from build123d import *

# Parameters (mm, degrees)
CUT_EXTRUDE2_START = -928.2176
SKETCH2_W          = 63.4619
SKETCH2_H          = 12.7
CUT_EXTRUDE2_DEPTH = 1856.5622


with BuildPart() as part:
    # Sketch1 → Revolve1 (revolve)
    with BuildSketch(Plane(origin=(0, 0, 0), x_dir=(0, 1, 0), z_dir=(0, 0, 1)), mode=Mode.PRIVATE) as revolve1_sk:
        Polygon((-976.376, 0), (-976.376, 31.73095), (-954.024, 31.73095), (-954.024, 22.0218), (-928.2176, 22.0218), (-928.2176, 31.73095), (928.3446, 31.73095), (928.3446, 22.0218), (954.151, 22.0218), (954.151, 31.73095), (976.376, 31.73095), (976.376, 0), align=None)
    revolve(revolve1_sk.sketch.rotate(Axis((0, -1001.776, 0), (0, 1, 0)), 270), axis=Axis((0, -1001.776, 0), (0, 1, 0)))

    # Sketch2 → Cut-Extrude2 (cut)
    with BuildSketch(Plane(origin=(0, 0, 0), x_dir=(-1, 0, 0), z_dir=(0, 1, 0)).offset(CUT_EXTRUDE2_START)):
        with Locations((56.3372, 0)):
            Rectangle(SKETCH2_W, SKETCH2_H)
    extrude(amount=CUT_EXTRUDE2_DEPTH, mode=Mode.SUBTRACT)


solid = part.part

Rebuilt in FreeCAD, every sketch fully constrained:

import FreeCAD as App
import Part
import Sketcher

V = App.Vector
Q = App.Units.Quantity


def add_polygon(sketch, points):
    """Adds a closed chain of lines whose ends are joined by coincident constraints."""
    first, n = sketch.GeometryCount, len(points)
    for a, b in zip(points, points[1:] + points[:1]):
        sketch.addGeometry(Part.LineSegment(App.Vector(*a, 0), App.Vector(*b, 0)), False)
    for i in range(n):
        sketch.addConstraint(Sketcher.Constraint("Coincident", first + i, 2, first + (i + 1) % n, 1))

doc = App.newDocument("Part")
body = doc.addObject("PartDesign::Body", "Body")

# Sketch on XY plane
sketch1 = body.newObject("Sketcher::SketchObject", "Sketch")
sketch1.AttachmentSupport = (doc.getObject("XY_Plane"), [""])
sketch1.MapMode = "FlatFace"
add_polygon(sketch1, [(-31.73095, -976.376), (0, -976.376), (0, 976.376), (-31.73095, 976.376), (-31.73095, 954.151), (-22.0218, 954.151), (-22.0218, 928.3446), (-31.73095, 928.3446), (-31.73095, -928.2176), (-22.0218, -928.2176), (-22.0218, -954.024), (-31.73095, -954.024)])  # lines 0-11
sketch1.addConstraint(Sketcher.Constraint("Horizontal", 0))
sketch1.addConstraint(Sketcher.Constraint("Vertical", 1))
sketch1.addConstraint(Sketcher.Constraint("Horizontal", 2))
sketch1.addConstraint(Sketcher.Constraint("Vertical", 3))
sketch1.addConstraint(Sketcher.Constraint("Horizontal", 4))
sketch1.addConstraint(Sketcher.Constraint("Vertical", 5))
sketch1.addConstraint(Sketcher.Constraint("Horizontal", 6))
sketch1.addConstraint(Sketcher.Constraint("Vertical", 7))
sketch1.addConstraint(Sketcher.Constraint("Horizontal", 8))
sketch1.addConstraint(Sketcher.Constraint("Vertical", 9))
sketch1.addConstraint(Sketcher.Constraint("Horizontal", 10))
sketch1.addConstraint(Sketcher.Constraint("Vertical", 11))
sketch1.addConstraint(Sketcher.Constraint("Symmetric", 0, 2, 1, 2, -1, 1))
sketch1.addConstraint(Sketcher.Constraint("Vertical", 3, 2, 6, 2))
sketch1.addConstraint(Sketcher.Constraint("Vertical", 5, 2, 8, 2))
sketch1.addConstraint(Sketcher.Constraint("Vertical", 7, 2, 10, 2))
sketch1.addConstraint(Sketcher.Constraint("Equal", 5, 9))
sketch1.addConstraint(Sketcher.Constraint("DistanceY", 1, 1, 1, 2, Q("76.88 in")))
sketch1.addConstraint(Sketcher.Constraint("DistanceY", 11, 2, 11, 1, Q("0.88 in")))
sketch1.addConstraint(Sketcher.Constraint("DistanceY", 3, 2, 3, 1, Q("0.875 in")))
sketch1.addConstraint(Sketcher.Constraint("DistanceY", 5, 2, 5, 1, Q("1.016 in")))
sketch1.addConstraint(Sketcher.Constraint("DistanceX", 4, 2, -1, 1, Q("0.867 in")))
sketch1.addConstraint(Sketcher.Constraint("DistanceX", 0, 1, 0, 2, 31.73095))
revolution = body.newObject("PartDesign::Revolution", "Revolution")
revolution.Profile = sketch1
revolution.ReferenceAxis = (sketch1, ["V_Axis"])
revolution.Angle = 360

# Sketch on XZ plane
sketch2 = body.newObject("Sketcher::SketchObject", "Sketch001")
sketch2.AttachmentSupport = (doc.getObject("XZ_Plane"), [""])
sketch2.MapMode = "FlatFace"
sketch2.AttachmentOffset = App.Placement(V(0, 0, 36.544 * 25.4), App.Rotation())
add_polygon(sketch2, [(-24.60625, 6.35), (-24.60625, -6.35), (-88.06815, -6.35), (-88.06815, 6.35)])  # lines 0-3
sketch2.addConstraint(Sketcher.Constraint("Vertical", 0))
sketch2.addConstraint(Sketcher.Constraint("Horizontal", 1))
sketch2.addConstraint(Sketcher.Constraint("Vertical", 2))
sketch2.addConstraint(Sketcher.Constraint("Horizontal", 3))
sketch2.addConstraint(Sketcher.Constraint("DistanceY", 0, 2, 0, 1, Q("0.5 in")))
sketch2.addConstraint(Sketcher.Constraint("DistanceY", 0, 2, -1, 1, Q("0.25 in")))
sketch2.addConstraint(Sketcher.Constraint("DistanceX", 1, 2, 1, 1, Q("2.4985 in")))
sketch2.addConstraint(Sketcher.Constraint("DistanceX", 0, 2, -1, 1, Q("0.96875 in")))
pocket1 = body.newObject("PartDesign::Pocket", "Pocket")
pocket1.Profile = sketch2
pocket1.Length = Q("73.093 in")

doc.recompute()
